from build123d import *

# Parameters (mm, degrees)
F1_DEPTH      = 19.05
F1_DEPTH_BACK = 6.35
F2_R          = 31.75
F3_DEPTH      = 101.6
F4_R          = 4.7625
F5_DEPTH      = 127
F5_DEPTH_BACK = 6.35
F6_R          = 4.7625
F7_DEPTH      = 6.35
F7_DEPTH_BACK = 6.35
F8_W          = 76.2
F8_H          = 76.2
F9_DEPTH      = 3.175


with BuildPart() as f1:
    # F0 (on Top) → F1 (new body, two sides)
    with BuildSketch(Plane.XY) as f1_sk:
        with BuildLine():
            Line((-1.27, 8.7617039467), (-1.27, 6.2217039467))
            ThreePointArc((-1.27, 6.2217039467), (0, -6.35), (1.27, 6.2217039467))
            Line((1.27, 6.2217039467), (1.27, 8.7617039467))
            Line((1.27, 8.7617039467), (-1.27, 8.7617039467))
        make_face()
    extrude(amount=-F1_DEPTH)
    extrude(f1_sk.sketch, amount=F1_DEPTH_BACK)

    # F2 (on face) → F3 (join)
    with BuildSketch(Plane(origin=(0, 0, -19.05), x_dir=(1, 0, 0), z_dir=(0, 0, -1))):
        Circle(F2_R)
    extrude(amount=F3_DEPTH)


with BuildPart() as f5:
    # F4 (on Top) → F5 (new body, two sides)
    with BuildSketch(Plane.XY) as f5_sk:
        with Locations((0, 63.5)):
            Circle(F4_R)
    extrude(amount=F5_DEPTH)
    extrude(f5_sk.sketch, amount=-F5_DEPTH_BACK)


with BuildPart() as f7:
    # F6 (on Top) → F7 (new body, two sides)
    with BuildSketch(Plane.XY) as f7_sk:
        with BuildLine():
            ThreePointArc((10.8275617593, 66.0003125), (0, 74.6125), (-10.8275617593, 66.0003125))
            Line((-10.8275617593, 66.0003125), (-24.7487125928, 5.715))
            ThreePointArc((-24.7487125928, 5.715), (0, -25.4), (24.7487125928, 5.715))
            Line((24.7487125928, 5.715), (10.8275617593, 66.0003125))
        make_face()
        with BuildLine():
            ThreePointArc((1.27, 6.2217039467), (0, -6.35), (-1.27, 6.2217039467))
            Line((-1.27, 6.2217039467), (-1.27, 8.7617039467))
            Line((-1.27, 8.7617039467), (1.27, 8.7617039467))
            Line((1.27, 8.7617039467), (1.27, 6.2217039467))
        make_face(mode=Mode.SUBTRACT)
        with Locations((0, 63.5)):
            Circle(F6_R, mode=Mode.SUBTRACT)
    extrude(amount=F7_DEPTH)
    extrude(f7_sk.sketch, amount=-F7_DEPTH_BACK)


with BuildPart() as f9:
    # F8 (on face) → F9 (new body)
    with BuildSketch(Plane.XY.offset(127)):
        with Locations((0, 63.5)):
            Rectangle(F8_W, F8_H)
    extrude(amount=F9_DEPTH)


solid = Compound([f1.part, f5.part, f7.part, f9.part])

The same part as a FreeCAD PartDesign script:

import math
import FreeCAD as App
import Part
import Sketcher
from FreeCAD import Vector
Q = App.Units.Quantity

doc = App.newDocument("Part")
body = doc.addObject("PartDesign::Body", "Body")

sketch1 = doc.addObject("Sketcher::SketchObject", "Sketch")
body.addObject(sketch1)
sketch1.AttachmentSupport = (doc.XY_Plane, [""])
sketch1.MapMode = "FlatFace"
sketch1.addGeometry([
    Part.LineSegment(Vector(-1.27, 8.761704, 0), Vector(-1.27, 6.221704, 0)),
    Part.ArcOfCircle(Part.Circle(Vector(0, 0, 0), Vector(0, 0, 1), 6.35), math.radians(101.536959), math.radians(438.463041)),
    Part.LineSegment(Vector(1.27, 6.221704, 0), Vector(1.27, 8.761704, 0)),
    Part.LineSegment(Vector(1.27, 8.761704, 0), Vector(-1.27, 8.761704, 0)),
], False)
sketch1.addConstraint([
    Sketcher.Constraint("Coincident", 0, 2, 1, 1),
    Sketcher.Constraint("Coincident", 1, 2, 2, 1),
    Sketcher.Constraint("Coincident", 2, 2, 3, 1),
    Sketcher.Constraint("Coincident", 3, 2, 0, 1),
    Sketcher.Constraint("Vertical", 0),
    Sketcher.Constraint("Vertical", 2),
    Sketcher.Constraint("Horizontal", 3),
    Sketcher.Constraint("Coincident", 1, 3, -1, 1),
    Sketcher.Constraint("Horizontal", 0, 2, 1, 2),
    Sketcher.Constraint("Equal", 3, 0),
    Sketcher.Constraint("Radius", 1, Q("0.25 in")),
    Sketcher.Constraint("DistanceX", 3, 2, 3, 1, Q("0.1 in")),
])
pad1 = doc.addObject("PartDesign::Pad", "Pad")
body.addObject(pad1)
pad1.Profile = sketch1
pad1.Type = "TwoLengths"
pad1.Length = Q("0.75 in")
pad1.Length2 = Q("0.25 in")
pad1.Reversed = True

sketch2 = doc.addObject("Sketcher::SketchObject", "Sketch001")
body.addObject(sketch2)
sketch2.AttachmentSupport = (doc.XY_Plane, [""])
sketch2.MapMode = "FlatFace"
sketch2.AttachmentOffset = App.Placement(Vector(0, 0, -0.75 * 25.4), App.Rotation())
sketch2.addGeometry(Part.Circle(Vector(0, 0, 0), Vector(0, 0, 1), 31.75), False)
sketch2.addConstraint([
    Sketcher.Constraint("Coincident", 0, 3, -1, 1),
    Sketcher.Constraint("Diameter", 0, Q("2.5 in")),
])
pad2 = doc.addObject("PartDesign::Pad", "Pad001")
body.addObject(pad2)
pad2.Profile = sketch2
pad2.Length = Q("4 in")
pad2.Reversed = True
body2 = doc.addObject("PartDesign::Body", "Body001")

sketch3 = doc.addObject("Sketcher::SketchObject", "Sketch002")
body2.addObject(sketch3)
sketch3.AttachmentSupport = (doc.getObject("XY_Plane001"), [""])
sketch3.MapMode = "FlatFace"
sketch3.addGeometry(Part.Circle(Vector(0, 63.5, 0), Vector(0, 0, 1), 4.7625), False)
sketch3.addConstraint([
    Sketcher.Constraint("PointOnObject", 0, 3, -2),
    Sketcher.Constraint("Diameter", 0, Q("0.375 in")),
    Sketcher.Constraint("DistanceY", -1, 1, 0, 3, Q("2.5 in")),
])
pad3 = doc.addObject("PartDesign::Pad", "Pad002")
body2.addObject(pad3)
pad3.Profile = sketch3
pad3.Type = "TwoLengths"
pad3.Length = Q("5 in")
pad3.Length2 = Q("0.25 in")
body3 = doc.addObject("PartDesign::Body", "Body002")

sketch4 = doc.addObject("Sketcher::SketchObject", "Sketch003")
body3.addObject(sketch4)
sketch4.AttachmentSupport = (doc.getObject("XY_Plane002"), [""])
sketch4.MapMode = "FlatFace"
sketch4.addGeometry([
    Part.ArcOfCircle(Part.Circle(Vector(0, 63.5, 0), Vector(0, 0, 1), 11.1125), math.radians(13.002878), math.radians(166.997122)),
    Part.LineSegment(Vector(-10.827562, 66.000313, 0), Vector(-24.748713, 5.715, 0)),
    Part.ArcOfCircle(Part.Circle(Vector(0, 0, 0), Vector(0, 0, 1), 25.4), math.radians(166.997122), math.radians(373.002878)),
    Part.LineSegment(Vector(24.748713, 5.715, 0), Vector(10.827562, 66.000313, 0)),
    Part.LineSegment(Vector(1.27, 8.761704, 0), Vector(1.27, 6.221704, 0)),
    Part.ArcOfCircle(Part.Circle(Vector(0, 0, 0), Vector(0, 0, 1), 6.35), math.radians(101.536959), math.radians(438.463041)),
    Part.LineSegment(Vector(-1.27, 6.221704, 0), Vector(-1.27, 8.761704, 0)),
    Part.LineSegment(Vector(-1.27, 8.761704, 0), Vector(1.27, 8.761704, 0)),
    Part.Circle(Vector(0, 63.5, 0), Vector(0, 0, 1), 4.7625),
], False)
sketch4.addConstraint([
    Sketcher.Constraint("Tangent", 0, 2, 1, 1),
    Sketcher.Constraint("Tangent", 1, 2, 2, 1),
    Sketcher.Constraint("Tangent", 2, 2, 3, 1),
    Sketcher.Constraint("Tangent", 3, 2, 0, 1),
    Sketcher.Constraint("Coincident", 4, 2, 5, 2),
    Sketcher.Constraint("Coincident", 5, 1, 6, 1),
    Sketcher.Constraint("Coincident", 6, 2, 7, 1),
    Sketcher.Constraint("Coincident", 7, 2, 4, 1),
    Sketcher.Constraint("Vertical", 4),
    Sketcher.Constraint("Vertical", 6),
    Sketcher.Constraint("Horizontal", 7),
    Sketcher.Constraint("Coincident", 2, 3, -1, 1),
    Sketcher.Constraint("Coincident", 5, 3, -1, 1),
    Sketcher.Constraint("Coincident", 8, 3, 0, 3),
    Sketcher.Constraint("PointOnObject", 0, 3, -2),
    Sketcher.Constraint("Horizontal", 4, 2, 5, 1),
    Sketcher.Constraint("Equal", 7, 4),
    Sketcher.Constraint("Radius", 2, Q("1 in")),
    Sketcher.Constraint("Radius", 5, Q("0.25 in")),
    Sketcher.Constraint("Diameter", 8, Q("0.375 in")),
    Sketcher.Constraint("DistanceX", 7, 1, 7, 2, Q("0.1 in")),
    Sketcher.Constraint("Radius", 0, Q("0.4375 in")),
    Sketcher.Constraint("DistanceY", -1, 1, 0, 3, Q("2.5 in")),
])
pad4 = doc.addObject("PartDesign::Pad", "Pad003")
body3.addObject(pad4)
pad4.Profile = sketch4
pad4.Type = "TwoLengths"
pad4.Length = Q("0.25 in")
pad4.Length2 = Q("0.25 in")
body4 = doc.addObject("PartDesign::Body", "Body003")

sketch5 = doc.addObject("Sketcher::SketchObject", "Sketch004")
body4.addObject(sketch5)
sketch5.AttachmentSupport = (doc.getObject("XY_Plane003"), [""])
sketch5.MapMode = "FlatFace"
sketch5.AttachmentOffset = App.Placement(Vector(0, 0, 5 * 25.4), App.Rotation())
sketch5.addGeometry([
    Part.LineSegment(Vector(-38.1, 101.6, 0), Vector(-38.1, 25.4, 0)),
    Part.LineSegment(Vector(-38.1, 25.4, 0), Vector(38.1, 25.4, 0)),
    Part.LineSegment(Vector(38.1, 25.4, 0), Vector(38.1, 101.6, 0)),
    Part.LineSegment(Vector(38.1, 101.6, 0), Vector(-38.1, 101.6, 0)),
], False)
sketch5.addConstraint([
    Sketcher.Constraint("Coincident", 0, 2, 1, 1),
    Sketcher.Constraint("Coincident", 1, 2, 2, 1),
    Sketcher.Constraint("Coincident", 2, 2, 3, 1),
    Sketcher.Constraint("Coincident", 3, 2, 0, 1),
    Sketcher.Constraint("Vertical", 0),
    Sketcher.Constraint("Horizontal", 1),
    Sketcher.Constraint("Vertical", 2),
    Sketcher.Constraint("Horizontal", 3),
    Sketcher.Constraint("Equal", 3, 0),
    Sketcher.Constraint("DistanceX", 1, 1, 1, 2, Q("3 in")),
    Sketcher.Constraint("DistanceY", -1, 1, 0, 2, Q("1 in")),
    Sketcher.Constraint("DistanceX", 0, 2, -1, 1, Q("1.5 in")),
])
pad5 = doc.addObject("PartDesign::Pad", "Pad004")
body4.addObject(pad5)
pad5.Profile = sketch5
pad5.Length = Q("0.125 in")

doc.recompute()
